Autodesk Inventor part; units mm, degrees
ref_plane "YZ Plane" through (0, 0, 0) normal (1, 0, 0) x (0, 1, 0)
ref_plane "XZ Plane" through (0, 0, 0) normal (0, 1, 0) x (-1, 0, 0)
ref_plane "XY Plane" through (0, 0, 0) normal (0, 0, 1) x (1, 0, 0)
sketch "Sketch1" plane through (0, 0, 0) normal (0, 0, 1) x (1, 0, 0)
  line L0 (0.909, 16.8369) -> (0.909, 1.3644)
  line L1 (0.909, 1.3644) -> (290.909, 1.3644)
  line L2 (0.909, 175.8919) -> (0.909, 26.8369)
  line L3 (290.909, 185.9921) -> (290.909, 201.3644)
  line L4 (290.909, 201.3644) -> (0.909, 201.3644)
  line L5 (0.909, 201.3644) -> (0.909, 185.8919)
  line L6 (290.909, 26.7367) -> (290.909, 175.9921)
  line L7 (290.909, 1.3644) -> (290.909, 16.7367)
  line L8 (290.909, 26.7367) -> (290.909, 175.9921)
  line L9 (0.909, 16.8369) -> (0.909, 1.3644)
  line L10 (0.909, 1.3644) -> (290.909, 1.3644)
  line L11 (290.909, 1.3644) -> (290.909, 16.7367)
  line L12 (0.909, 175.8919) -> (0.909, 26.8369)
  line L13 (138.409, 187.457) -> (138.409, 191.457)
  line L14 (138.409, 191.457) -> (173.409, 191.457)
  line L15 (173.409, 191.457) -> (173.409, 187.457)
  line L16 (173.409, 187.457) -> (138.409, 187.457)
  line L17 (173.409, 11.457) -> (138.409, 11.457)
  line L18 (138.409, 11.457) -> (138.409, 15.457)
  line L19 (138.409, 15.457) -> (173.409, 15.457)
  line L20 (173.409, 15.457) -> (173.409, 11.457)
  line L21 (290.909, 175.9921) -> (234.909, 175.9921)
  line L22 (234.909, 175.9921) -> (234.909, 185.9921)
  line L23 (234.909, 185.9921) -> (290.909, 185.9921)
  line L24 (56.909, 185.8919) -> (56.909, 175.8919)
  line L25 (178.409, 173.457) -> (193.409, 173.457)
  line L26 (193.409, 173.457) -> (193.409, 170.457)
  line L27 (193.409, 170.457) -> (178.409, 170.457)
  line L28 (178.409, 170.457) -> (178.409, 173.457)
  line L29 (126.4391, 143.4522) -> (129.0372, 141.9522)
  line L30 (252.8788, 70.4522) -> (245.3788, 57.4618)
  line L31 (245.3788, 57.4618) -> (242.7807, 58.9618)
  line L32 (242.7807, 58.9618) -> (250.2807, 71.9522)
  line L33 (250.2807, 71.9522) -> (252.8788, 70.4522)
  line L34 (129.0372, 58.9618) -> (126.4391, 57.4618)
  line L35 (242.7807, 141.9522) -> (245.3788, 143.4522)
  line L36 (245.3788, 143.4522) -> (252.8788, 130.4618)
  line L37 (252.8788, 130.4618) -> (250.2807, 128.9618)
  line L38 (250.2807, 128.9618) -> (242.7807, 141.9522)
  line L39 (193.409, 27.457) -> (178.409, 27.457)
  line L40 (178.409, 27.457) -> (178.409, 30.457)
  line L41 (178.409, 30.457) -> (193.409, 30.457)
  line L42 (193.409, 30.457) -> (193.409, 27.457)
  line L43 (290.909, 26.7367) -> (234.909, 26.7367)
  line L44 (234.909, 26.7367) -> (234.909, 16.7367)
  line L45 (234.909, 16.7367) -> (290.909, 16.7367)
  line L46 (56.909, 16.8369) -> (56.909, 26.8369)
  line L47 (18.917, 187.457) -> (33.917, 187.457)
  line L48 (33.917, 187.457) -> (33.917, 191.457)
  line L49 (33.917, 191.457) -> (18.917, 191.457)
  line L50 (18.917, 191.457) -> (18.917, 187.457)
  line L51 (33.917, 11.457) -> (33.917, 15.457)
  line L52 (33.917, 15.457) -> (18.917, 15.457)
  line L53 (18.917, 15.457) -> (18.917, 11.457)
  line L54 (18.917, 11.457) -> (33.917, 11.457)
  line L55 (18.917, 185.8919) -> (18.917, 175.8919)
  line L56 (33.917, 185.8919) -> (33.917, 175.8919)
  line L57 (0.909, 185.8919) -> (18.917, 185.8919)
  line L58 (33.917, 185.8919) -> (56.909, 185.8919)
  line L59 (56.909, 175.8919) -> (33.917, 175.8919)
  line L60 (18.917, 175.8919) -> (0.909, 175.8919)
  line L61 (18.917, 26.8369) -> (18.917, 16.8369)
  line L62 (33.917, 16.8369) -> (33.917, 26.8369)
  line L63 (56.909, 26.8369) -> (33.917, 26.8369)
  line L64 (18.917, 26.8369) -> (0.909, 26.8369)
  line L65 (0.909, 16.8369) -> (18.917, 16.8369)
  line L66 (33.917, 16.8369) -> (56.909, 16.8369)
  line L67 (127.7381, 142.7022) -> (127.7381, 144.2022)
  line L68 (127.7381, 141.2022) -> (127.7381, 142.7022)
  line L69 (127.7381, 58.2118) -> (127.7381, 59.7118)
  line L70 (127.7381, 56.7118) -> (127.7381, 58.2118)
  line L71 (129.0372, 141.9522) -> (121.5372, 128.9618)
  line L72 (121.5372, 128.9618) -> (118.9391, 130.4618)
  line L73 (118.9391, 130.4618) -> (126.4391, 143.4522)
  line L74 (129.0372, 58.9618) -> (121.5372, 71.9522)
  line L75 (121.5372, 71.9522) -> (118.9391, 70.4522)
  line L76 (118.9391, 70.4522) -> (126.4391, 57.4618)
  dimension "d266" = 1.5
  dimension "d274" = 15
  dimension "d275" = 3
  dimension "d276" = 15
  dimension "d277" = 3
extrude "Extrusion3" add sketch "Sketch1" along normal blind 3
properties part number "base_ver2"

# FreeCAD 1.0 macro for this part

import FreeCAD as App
import Part
import Sketcher
Q = App.Units.Quantity

doc = App.newDocument("Part")
params = doc.addObject("Spreadsheet::Sheet", "Params")
for row, (alias, value) in enumerate([
    ("sketch1_width", "15 mm"),
    ("sketch1_height", "3 mm"),
    ("sketch1_length", "15 mm"),
    ("sketch1_length2", "3 mm"),
    ("sketch1_width2", "290 mm"),
    ("pad1_length", "3 mm"),
], start=1):
    params.set(f"A{row}", alias)
    params.set(f"B{row}", "=" + value)
    params.setAlias(f"B{row}", alias)

body = doc.addObject("PartDesign::Body", "Body")

sketch1 = body.newObject("Sketcher::SketchObject", "Sketch")
sketch1.AttachmentSupport = (doc.getObject("XY_Plane"), [""])
sketch1.MapMode = "FlatFace"
sketch1.addGeometry([
    Part.LineSegment(App.Vector(18.9, 16.8, 0), App.Vector(0.9, 16.8, 0)),
    Part.LineSegment(App.Vector(0.9, 16.8, 0), App.Vector(0.9, 1.4, 0)),
    Part.LineSegment(App.Vector(0.9, 1.4, 0), App.Vector(290.9, 1.4, 0)),
    Part.LineSegment(App.Vector(290.9, 1.4, 0), App.Vector(290.9, 16.7, 0)),
    Part.LineSegment(App.Vector(290.9, 16.7, 0), App.Vector(234.9, 16.7, 0)),
    Part.LineSegment(App.Vector(234.9, 16.7, 0), App.Vector(234.9, 26.7, 0)),
    Part.LineSegment(App.Vector(234.9, 26.7, 0), App.Vector(290.9, 26.7, 0)),
    Part.LineSegment(App.Vector(290.9, 26.7, 0), App.Vector(290.9, 176, 0)),
    Part.LineSegment(App.Vector(290.9, 176, 0), App.Vector(234.9, 176, 0)),
    Part.LineSegment(App.Vector(234.9, 176, 0), App.Vector(234.9, 186, 0)),
    Part.LineSegment(App.Vector(234.9, 186, 0), App.Vector(290.9, 186, 0)),
    Part.LineSegment(App.Vector(290.9, 186, 0), App.Vector(290.9, 201.4, 0)),
    Part.LineSegment(App.Vector(290.9, 201.4, 0), App.Vector(0.9, 201.4, 0)),
    Part.LineSegment(App.Vector(0.9, 201.4, 0), App.Vector(0.9, 185.9, 0)),
    Part.LineSegment(App.Vector(0.9, 185.9, 0), App.Vector(18.9, 185.9, 0)),
    Part.LineSegment(App.Vector(18.9, 185.9, 0), App.Vector(18.9, 175.9, 0)),
    Part.LineSegment(App.Vector(18.9, 175.9, 0), App.Vector(0.9, 175.9, 0)),
    Part.LineSegment(App.Vector(0.9, 175.9, 0), App.Vector(0.9, 26.8, 0)),
    Part.LineSegment(App.Vector(0.9, 26.8, 0), App.Vector(18.9, 26.8, 0)),
    Part.LineSegment(App.Vector(18.9, 26.8, 0), App.Vector(18.9, 16.8, 0)),
    Part.LineSegment(App.Vector(33.9, 15.5, 0), App.Vector(33.9, 11.5, 0)),
    Part.LineSegment(App.Vector(33.9, 11.5, 0), App.Vector(18.9, 11.5, 0)),
    Part.LineSegment(App.Vector(18.9, 11.5, 0), App.Vector(18.9, 15.5, 0)),
    Part.LineSegment(App.Vector(18.9, 15.5, 0), App.Vector(33.9, 15.5, 0)),
    Part.LineSegment(App.Vector(56.9, 26.8, 0), App.Vector(56.9, 16.8, 0)),
    Part.LineSegment(App.Vector(56.9, 16.8, 0), App.Vector(33.9, 16.8, 0)),
    Part.LineSegment(App.Vector(33.9, 16.8, 0), App.Vector(33.9, 26.8, 0)),
    Part.LineSegment(App.Vector(33.9, 26.8, 0), App.Vector(56.9, 26.8, 0)),
    Part.LineSegment(App.Vector(121.5, 72, 0), App.Vector(129, 59, 0)),
    Part.LineSegment(App.Vector(129, 59, 0), App.Vector(126.4, 57.5, 0)),
    Part.LineSegment(App.Vector(126.4, 57.5, 0), App.Vector(118.9, 70.5, 0)),
    Part.LineSegment(App.Vector(118.9, 70.5, 0), App.Vector(121.5, 72, 0)),
    Part.LineSegment(App.Vector(173.4, 15.5, 0), App.Vector(173.4, 11.5, 0)),
    Part.LineSegment(App.Vector(173.4, 11.5, 0), App.Vector(138.4, 11.5, 0)),
    Part.LineSegment(App.Vector(138.4, 11.5, 0), App.Vector(138.4, 15.5, 0)),
    Part.LineSegment(App.Vector(138.4, 15.5, 0), App.Vector(173.4, 15.5, 0)),
    Part.LineSegment(App.Vector(193.4, 30.5, 0), App.Vector(193.4, 27.5, 0)),
    Part.LineSegment(App.Vector(193.4, 27.5, 0), App.Vector(178.4, 27.5, 0)),
    Part.LineSegment(App.Vector(178.4, 27.5, 0), App.Vector(178.4, 30.5, 0)),
    Part.LineSegment(App.Vector(178.4, 30.5, 0), App.Vector(193.4, 30.5, 0)),
    Part.LineSegment(App.Vector(250.3, 72, 0), App.Vector(252.9, 70.5, 0)),
    Part.LineSegment(App.Vector(252.9, 70.5, 0), App.Vector(245.4, 57.5, 0)),
    Part.LineSegment(App.Vector(245.4, 57.5, 0), App.Vector(242.8, 59, 0)),
    Part.LineSegment(App.Vector(242.8, 59, 0), App.Vector(250.3, 72, 0)),
    Part.LineSegment(App.Vector(118.9, 130.5, 0), App.Vector(126.4, 143.5, 0)),
    Part.LineSegment(App.Vector(126.4, 143.5, 0), App.Vector(129, 142, 0)),
    Part.LineSegment(App.Vector(129, 142, 0), App.Vector(121.5, 129, 0)),
    Part.LineSegment(App.Vector(121.5, 129, 0), App.Vector(118.9, 130.5, 0)),
    Part.LineSegment(App.Vector(33.9, 187.5, 0), App.Vector(18.9, 187.5, 0)),
    Part.LineSegment(App.Vector(18.9, 187.5, 0), App.Vector(18.9, 191.5, 0)),
    Part.LineSegment(App.Vector(18.9, 191.5, 0), App.Vector(33.9, 191.5, 0)),
    Part.LineSegment(App.Vector(33.9, 191.5, 0), App.Vector(33.9, 187.5, 0)),
    Part.LineSegment(App.Vector(33.9, 185.9, 0), App.Vector(56.9, 185.9, 0)),
    Part.LineSegment(App.Vector(56.9, 185.9, 0), App.Vector(56.9, 175.9, 0)),
    Part.LineSegment(App.Vector(56.9, 175.9, 0), App.Vector(33.9, 175.9, 0)),
    Part.LineSegment(App.Vector(33.9, 175.9, 0), App.Vector(33.9, 185.9, 0)),
    Part.LineSegment(App.Vector(250.3, 129, 0), App.Vector(242.8, 142, 0)),
    Part.LineSegment(App.Vector(242.8, 142, 0), App.Vector(245.4, 143.5, 0)),
    Part.LineSegment(App.Vector(245.4, 143.5, 0), App.Vector(252.9, 130.5, 0)),
    Part.LineSegment(App.Vector(252.9, 130.5, 0), App.Vector(250.3, 129, 0)),
    Part.LineSegment(App.Vector(178.4, 170.5, 0), App.Vector(178.4, 173.5, 0)),
    Part.LineSegment(App.Vector(178.4, 173.5, 0), App.Vector(193.4, 173.5, 0)),
    Part.LineSegment(App.Vector(193.4, 173.5, 0), App.Vector(193.4, 170.5, 0)),
    Part.LineSegment(App.Vector(193.4, 170.5, 0), App.Vector(178.4, 170.5, 0)),
    Part.LineSegment(App.Vector(173.4, 187.5, 0), App.Vector(138.4, 187.5, 0)),
    Part.LineSegment(App.Vector(138.4, 187.5, 0), App.Vector(138.4, 191.5, 0)),
    Part.LineSegment(App.Vector(138.4, 191.5, 0), App.Vector(173.4, 191.5, 0)),
    Part.LineSegment(App.Vector(173.4, 191.5, 0), App.Vector(173.4, 187.5, 0)),
], False)
sketch1.addConstraint([
    Sketcher.Constraint("Coincident", 0, 2, 1, 1),
    Sketcher.Constraint("Coincident", 1, 2, 2, 1),
    Sketcher.Constraint("Coincident", 2, 2, 3, 1),
    Sketcher.Constraint("Coincident", 3, 2, 4, 1),
    Sketcher.Constraint("Coincident", 4, 2, 5, 1),
    Sketcher.Constraint("Coincident", 5, 2, 6, 1),
    Sketcher.Constraint("Coincident", 6, 2, 7, 1),
    Sketcher.Constraint("Coincident", 7, 2, 8, 1),
    Sketcher.Constraint("Coincident", 8, 2, 9, 1),
    Sketcher.Constraint("Coincident", 9, 2, 10, 1),
    Sketcher.Constraint("Coincident", 10, 2, 11, 1),
    Sketcher.Constraint("Coincident", 11, 2, 12, 1),
    Sketcher.Constraint("Coincident", 12, 2, 13, 1),
    Sketcher.Constraint("Coincident", 13, 2, 14, 1),
    Sketcher.Constraint("Coincident", 14, 2, 15, 1),
    Sketcher.Constraint("Coincident", 15, 2, 16, 1),
    Sketcher.Constraint("Coincident", 16, 2, 17, 1),
    Sketcher.Constraint("Coincident", 17, 2, 18, 1),
    Sketcher.Constraint("Coincident", 18, 2, 19, 1),
    Sketcher.Constraint("Coincident", 19, 2, 0, 1),
    Sketcher.Constraint("Coincident", 20, 2, 21, 1),
    Sketcher.Constraint("Coincident", 21, 2, 22, 1),
    Sketcher.Constraint("Coincident", 22, 2, 23, 1),
    Sketcher.Constraint("Coincident", 23, 2, 20, 1),
    Sketcher.Constraint("Coincident", 24, 2, 25, 1),
    Sketcher.Constraint("Coincident", 25, 2, 26, 1),
    Sketcher.Constraint("Coincident", 26, 2, 27, 1),
    Sketcher.Constraint("Coincident", 27, 2, 24, 1),
    Sketcher.Constraint("Coincident", 28, 2, 29, 1),
    Sketcher.Constraint("Coincident", 29, 2, 30, 1),
    Sketcher.Constraint("Coincident", 30, 2, 31, 1),
    Sketcher.Constraint("Coincident", 31, 2, 28, 1),
    Sketcher.Constraint("Coincident", 32, 2, 33, 1),
    Sketcher.Constraint("Coincident", 33, 2, 34, 1),
    Sketcher.Constraint("Coincident", 34, 2, 35, 1),
    Sketcher.Constraint("Coincident", 35, 2, 32, 1),
    Sketcher.Constraint("Coincident", 36, 2, 37, 1),
    Sketcher.Constraint("Coincident", 37, 2, 38, 1),
    Sketcher.Constraint("Coincident", 38, 2, 39, 1),
    Sketcher.Constraint("Coincident", 39, 2, 36, 1),
    Sketcher.Constraint("Coincident", 40, 2, 41, 1),
    Sketcher.Constraint("Coincident", 41, 2, 42, 1),
    Sketcher.Constraint("Coincident", 42, 2, 43, 1),
    Sketcher.Constraint("Coincident", 43, 2, 40, 1),
    Sketcher.Constraint("Coincident", 44, 2, 45, 1),
    Sketcher.Constraint("Coincident", 45, 2, 46, 1),
    Sketcher.Constraint("Coincident", 46, 2, 47, 1),
    Sketcher.Constraint("Coincident", 47, 2, 44, 1),
    Sketcher.Constraint("Coincident", 48, 2, 49, 1),
    Sketcher.Constraint("Coincident", 49, 2, 50, 1),
    Sketcher.Constraint("Coincident", 50, 2, 51, 1),
    Sketcher.Constraint("Coincident", 51, 2, 48, 1),
    Sketcher.Constraint("Coincident", 52, 2, 53, 1),
    Sketcher.Constraint("Coincident", 53, 2, 54, 1),
    Sketcher.Constraint("Coincident", 54, 2, 55, 1),
    Sketcher.Constraint("Coincident", 55, 2, 52, 1),
    Sketcher.Constraint("Coincident", 56, 2, 57, 1),
    Sketcher.Constraint("Coincident", 57, 2, 58, 1),
    Sketcher.Constraint("Coincident", 58, 2, 59, 1),
    Sketcher.Constraint("Coincident", 59, 2, 56, 1),
    Sketcher.Constraint("Coincident", 60, 2, 61, 1),
    Sketcher.Constraint("Coincident", 61, 2, 62, 1),
    Sketcher.Constraint("Coincident", 62, 2, 63, 1),
    Sketcher.Constraint("Coincident", 63, 2, 60, 1),
    Sketcher.Constraint("Coincident", 64, 2, 65, 1),
    Sketcher.Constraint("Coincident", 65, 2, 66, 1),
    Sketcher.Constraint("Coincident", 66, 2, 67, 1),
    Sketcher.Constraint("Coincident", 67, 2, 64, 1),
    Sketcher.Constraint("Horizontal", 0),
    Sketcher.Constraint("Vertical", 1),
    Sketcher.Constraint("Horizontal", 2),
    Sketcher.Constraint("Vertical", 3),
    Sketcher.Constraint("Horizontal", 4),
    Sketcher.Constraint("Vertical", 5),
    Sketcher.Constraint("Horizontal", 6),
    Sketcher.Constraint("Vertical", 7),
    Sketcher.Constraint("Horizontal", 8),
    Sketcher.Constraint("Vertical", 9),
    Sketcher.Constraint("Horizontal", 10),
    Sketcher.Constraint("Vertical", 11),
    Sketcher.Constraint("Horizontal", 12),
    Sketcher.Constraint("Vertical", 13),
    Sketcher.Constraint("Horizontal", 14),
    Sketcher.Constraint("Vertical", 15),
    Sketcher.Constraint("Horizontal", 16),
    Sketcher.Constraint("Vertical", 17),
    Sketcher.Constraint("Horizontal", 18),
    Sketcher.Constraint("Vertical", 19),
    Sketcher.Constraint("Vertical", 20),
    Sketcher.Constraint("Horizontal", 21),
    Sketcher.Constraint("Vertical", 22),
    Sketcher.Constraint("Horizontal", 23),
    Sketcher.Constraint("Vertical", 24),
    Sketcher.Constraint("Horizontal", 25),
    Sketcher.Constraint("Vertical", 26),
    Sketcher.Constraint("Horizontal", 27),
    Sketcher.Constraint("Vertical", 32),
    Sketcher.Constraint("Horizontal", 33),
    Sketcher.Constraint("Vertical", 34),
    Sketcher.Constraint("Horizontal", 35),
    Sketcher.Constraint("Vertical", 36),
    Sketcher.Constraint("Horizontal", 37),
    Sketcher.Constraint("Vertical", 38),
    Sketcher.Constraint("Horizontal", 39),
    Sketcher.Constraint("Horizontal", 48),
    Sketcher.Constraint("Vertical", 49),
    Sketcher.Constraint("Horizontal", 50),
    Sketcher.Constraint("Vertical", 51),
    Sketcher.Constraint("Horizontal", 52),
    Sketcher.Constraint("Vertical", 53),
    Sketcher.Constraint("Horizontal", 54),
    Sketcher.Constraint("Vertical", 55),
    Sketcher.Constraint("Vertical", 60),
    Sketcher.Constraint("Horizontal", 61),
    Sketcher.Constraint("Vertical", 62),
    Sketcher.Constraint("Horizontal", 63),
    Sketcher.Constraint("Horizontal", 64),
    Sketcher.Constraint("Vertical", 65),
    Sketcher.Constraint("Horizontal", 66),
    Sketcher.Constraint("Vertical", 67),
    Sketcher.Constraint("Perpendicular", 28, 29),
    Sketcher.Constraint("Perpendicular", 29, 30),
    Sketcher.Constraint("Perpendicular", 30, 31),
    Sketcher.Constraint("Perpendicular", 40, 41),
    Sketcher.Constraint("Perpendicular", 41, 42),
    Sketcher.Constraint("Perpendicular", 42, 43),
    Sketcher.Constraint("Parallel", 43, 44),
    Sketcher.Constraint("Perpendicular", 44, 45),
    Sketcher.Constraint("Perpendicular", 45, 46),
    Sketcher.Constraint("Perpendicular", 46, 47),
    Sketcher.Constraint("Perpendicular", 31, 56),
    Sketcher.Constraint("Perpendicular", 56, 57),
    Sketcher.Constraint("Perpendicular", 57, 58),
    Sketcher.Constraint("Perpendicular", 58, 59),
    Sketcher.Constraint("Horizontal", 19, 2, 24, 2),
    Sketcher.Constraint("Horizontal", 18, 2, 26, 2),
    Sketcher.Constraint("Horizontal", 21, 2, 32, 2),
    Sketcher.Constraint("Horizontal", 23, 2, 34, 2),
    Sketcher.Constraint("Horizontal", 30, 2, 40, 2),
    Sketcher.Constraint("Horizontal", 29, 2, 41, 2),
    Sketcher.Constraint("Horizontal", 28, 2, 42, 2),
    Sketcher.Constraint("Horizontal", 14, 2, 52, 2),
    Sketcher.Constraint("Horizontal", 16, 2, 53, 2),
    Sketcher.Constraint("Horizontal", 45, 2, 56, 2),
    Sketcher.Constraint("Horizontal", 44, 2, 57, 2),
    Sketcher.Constraint("Horizontal", 47, 2, 58, 2),
    Sketcher.Constraint("Horizontal", 51, 2, 64, 2),
    Sketcher.Constraint("Horizontal", 50, 2, 65, 2),
    Sketcher.Constraint("Vertical", 3, 2, 6, 2),
    Sketcher.Constraint("Vertical", 5, 2, 8, 2),
    Sketcher.Constraint("Vertical", 7, 2, 10, 2),
    Sketcher.Constraint("Vertical", 1, 2, 12, 2),
    Sketcher.Constraint("Vertical", 13, 2, 16, 2),
    Sketcher.Constraint("Vertical", 15, 2, 18, 2),
    Sketcher.Constraint("Vertical", 19, 2, 21, 2),
    Sketcher.Constraint("Vertical", 23, 2, 25, 2),
    Sketcher.Constraint("Vertical", 29, 2, 44, 2),
    Sketcher.Constraint("Vertical", 28, 2, 45, 2),
    Sketcher.Constraint("Vertical", 31, 2, 46, 2),
    Sketcher.Constraint("Vertical", 22, 2, 48, 2),
    Sketcher.Constraint("Vertical", 26, 2, 50, 2),
    Sketcher.Constraint("Vertical", 27, 2, 52, 2),
    Sketcher.Constraint("Vertical", 51, 2, 54, 2),
    Sketcher.Constraint("Vertical", 42, 2, 56, 2),
    Sketcher.Constraint("Vertical", 41, 2, 57, 2),
    Sketcher.Constraint("Vertical", 38, 2, 60, 2),
    Sketcher.Constraint("Vertical", 39, 2, 61, 2),
    Sketcher.Constraint("Vertical", 34, 2, 64, 2),
    Sketcher.Constraint("Vertical", 35, 2, 66, 2),
    Sketcher.Constraint("Equal", 23, 37),
    Sketcher.Constraint("Equal", 5, 9),
    Sketcher.Constraint("Equal", 3, 11),
    Sketcher.Constraint("Equal", 1, 13),
    Sketcher.Constraint("Equal", 9, 15),
    Sketcher.Constraint("Equal", 15, 19),
    Sketcher.Constraint("Equal", 34, 49),
    Sketcher.Constraint("Equal", 38, 60),
    Sketcher.Constraint("DistanceX", 21, 2, 21, 1, 15.0),
    Sketcher.Constraint("DistanceY", 36, 2, 36, 1, 3.0),
    Sketcher.Constraint("Distance", 28, 15.0),
    Sketcher.Constraint("Distance", 29, 3.0),
    Sketcher.Constraint("DistanceX", 2, 1, 2, 2, 290.0),
    Sketcher.Constraint("DistanceX", 4, 2, 4, 1, 56.0),
    Sketcher.Constraint("DistanceX", 33, 2, 33, 1, 35.0),
    Sketcher.Constraint("DistanceY", 5, 1, 5, 2, 10.0),
    Sketcher.Constraint("DistanceY", 20, 2, 20, 1, 4.0),
    Sketcher.Constraint("Angle", 28, Q("-60 deg")),
    Sketcher.Constraint("DistanceX", 0, 2, 0, 1, 18.008),
    Sketcher.Constraint("DistanceX", 25, 2, 25, 1, 22.992),
    Sketcher.Constraint("DistanceY", 17, 2, 17, 1, 149.055),
    Sketcher.Constraint("DistanceY", 1, 2, 1, 1, 15.4725),
    Sketcher.Constraint("DistanceY", 3, 1, 3, 2, 15.3723),
    Sketcher.Constraint("DistanceX", -1, 1, 0, 2, 0.909),
    Sketcher.Constraint("DistanceY", -1, 1, 0, 2, 16.837),
    Sketcher.Constraint("DistanceY", -1, 1, 20, 2, 11.457),
    Sketcher.Constraint("DistanceX", -1, 1, 29, 2, 126.439),
    Sketcher.Constraint("DistanceX", -1, 1, 32, 2, 173.409),
    Sketcher.Constraint("DistanceX", -1, 1, 36, 2, 193.409),
    Sketcher.Constraint("DistanceY", -1, 1, 36, 2, 27.457),
    Sketcher.Constraint("DistanceY", -1, 1, 48, 2, 187.457),
    Sketcher.Constraint("DistanceY", -1, 1, 60, 2, 173.457),
    Sketcher.Constraint("DistanceY", -1, 1, 28, 2, 58.9618),
    Sketcher.Constraint("DistanceX", -1, 1, 40, 2, 252.8788),
    Sketcher.Constraint("DistanceY", -1, 1, 44, 2, 143.4522),
])
sketch1.setExpression("Constraints[177]", "Params.sketch1_width")
sketch1.setExpression("Constraints[178]", "Params.sketch1_height")
sketch1.setExpression("Constraints[179]", "Params.sketch1_length")
sketch1.setExpression("Constraints[180]", "Params.sketch1_length2")
sketch1.setExpression("Constraints[181]", "Params.sketch1_width2")
pad1 = body.newObject("PartDesign::Pad", "Pad")
pad1.Profile = sketch1
pad1.setExpression("Length", "Params.pad1_length")

doc.recompute()
